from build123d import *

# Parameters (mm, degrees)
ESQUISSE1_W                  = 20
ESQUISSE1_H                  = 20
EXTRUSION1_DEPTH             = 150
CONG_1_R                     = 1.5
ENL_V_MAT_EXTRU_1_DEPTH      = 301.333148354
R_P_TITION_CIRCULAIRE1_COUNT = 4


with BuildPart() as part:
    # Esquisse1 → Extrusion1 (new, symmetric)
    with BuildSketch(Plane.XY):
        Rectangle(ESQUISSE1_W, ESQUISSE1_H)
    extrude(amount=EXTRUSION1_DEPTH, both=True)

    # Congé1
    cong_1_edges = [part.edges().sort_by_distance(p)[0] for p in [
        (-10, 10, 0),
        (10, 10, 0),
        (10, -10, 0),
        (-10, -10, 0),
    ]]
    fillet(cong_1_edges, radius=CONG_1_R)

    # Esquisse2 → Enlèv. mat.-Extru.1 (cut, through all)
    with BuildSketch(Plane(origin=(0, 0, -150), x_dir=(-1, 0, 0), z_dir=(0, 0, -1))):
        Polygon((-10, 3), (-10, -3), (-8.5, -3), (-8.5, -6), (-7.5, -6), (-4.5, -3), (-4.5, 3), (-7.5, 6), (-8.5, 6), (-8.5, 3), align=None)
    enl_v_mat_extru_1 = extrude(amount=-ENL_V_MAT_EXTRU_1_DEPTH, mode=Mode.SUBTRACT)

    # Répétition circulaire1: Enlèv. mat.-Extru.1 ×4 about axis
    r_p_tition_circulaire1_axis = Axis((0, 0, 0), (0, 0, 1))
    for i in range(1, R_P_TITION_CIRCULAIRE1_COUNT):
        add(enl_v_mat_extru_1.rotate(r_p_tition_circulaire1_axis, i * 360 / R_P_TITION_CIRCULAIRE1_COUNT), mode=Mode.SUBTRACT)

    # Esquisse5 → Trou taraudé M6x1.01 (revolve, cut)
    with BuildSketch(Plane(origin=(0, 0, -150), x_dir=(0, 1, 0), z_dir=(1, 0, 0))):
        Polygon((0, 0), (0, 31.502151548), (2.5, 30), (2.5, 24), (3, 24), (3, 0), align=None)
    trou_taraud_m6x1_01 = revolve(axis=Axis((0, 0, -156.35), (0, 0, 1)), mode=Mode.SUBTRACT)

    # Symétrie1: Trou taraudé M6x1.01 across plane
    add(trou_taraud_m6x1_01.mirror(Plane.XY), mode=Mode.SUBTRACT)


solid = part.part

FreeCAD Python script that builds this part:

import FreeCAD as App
import Part
import Sketcher
Q = App.Units.Quantity


def edges_at(feature, points):
    """Names of the edges that pass closest to the given points."""
    edges = feature.Shape.Edges
    near = lambda p: min(range(len(edges)), key=lambda i: edges[i].distToShape(Part.Vertex(*p))[0])
    return sorted({f"Edge{near(p) + 1}" for p in points})


def add_polygon(sketch, points):
    """Adds a closed chain of lines whose ends are joined by coincident constraints."""
    first, n = sketch.GeometryCount, len(points)
    for a, b in zip(points, points[1:] + points[:1]):
        sketch.addGeometry(Part.LineSegment(App.Vector(*a, 0), App.Vector(*b, 0)), False)
    for i in range(n):
        sketch.addConstraint(Sketcher.Constraint("Coincident", first + i, 2, first + (i + 1) % n, 1))

doc = App.newDocument("Part")
body = doc.addObject("PartDesign::Body", "Body")

# Sketch on XY plane
sketch1 = body.newObject("Sketcher::SketchObject", "Sketch")
sketch1.AttachmentSupport = (doc.getObject("XY_Plane"), [""])
sketch1.MapMode = "FlatFace"
add_polygon(sketch1, [(-10, 10), (-10, -10), (10, -10), (10, 10)])  # lines 0-3
sketch1.addConstraint([
    Sketcher.Constraint("Vertical", 0),
    Sketcher.Constraint("Horizontal", 1),
    Sketcher.Constraint("Vertical", 2),
    Sketcher.Constraint("Horizontal", 3),
    Sketcher.Constraint("Symmetric", 0, 2, 2, 2, -1, 1),
    Sketcher.Constraint("Equal", 3, 0),
    Sketcher.Constraint("DistanceX", 1, 1, 1, 2, 20.0),
])
pad1 = body.newObject("PartDesign::Pad", "Pad")
pad1.Profile = sketch1
pad1.Length = 300
pad1.Midplane = True
doc.recompute()

fillet = body.newObject("PartDesign::Fillet", "Fillet")
fillet.Base = (pad1, edges_at(pad1, [
    (-10, 10, 0),
    (10, 10, 0),
    (10, -10, 0),
    (-10, -10, 0),
]))
fillet.Radius = 1.5

# Sketch on XY plane
sketch2 = body.newObject("Sketcher::SketchObject", "Sketch001")
sketch2.AttachmentSupport = (doc.getObject("XY_Plane"), [""])
sketch2.MapMode = "FlatFace"
sketch2.AttachmentOffset = App.Placement(App.Vector(0, 0, -150), App.Rotation())
add_polygon(sketch2, [(10, 3), (10, -3), (8.5, -3), (8.5, -6), (7.5, -6), (4.5, -3), (4.5, 3), (7.5, 6), (8.5, 6), (8.5, 3)])  # lines 0-9
sketch2.addConstraint([
    Sketcher.Constraint("Vertical", 0),
    Sketcher.Constraint("Horizontal", 1),
    Sketcher.Constraint("Vertical", 2),
    Sketcher.Constraint("Horizontal", 3),
    Sketcher.Constraint("Vertical", 5),
    Sketcher.Constraint("Horizontal", 7),
    Sketcher.Constraint("Vertical", 8),
    Sketcher.Constraint("Horizontal", 9),
    Sketcher.Constraint("Symmetric", 3, 2, 6, 2, -1),
    Sketcher.Constraint("Symmetric", 1, 2, 8, 2, -1),
    Sketcher.Constraint("Perpendicular", 4, 6),
    Sketcher.Constraint("Horizontal", 1, 2, 4, 2),
    Sketcher.Constraint("Horizontal", 5, 2, 8, 2),
    Sketcher.Constraint("DistanceX", 3, 2, 3, 1, 1.0),
    Sketcher.Constraint("DistanceY", 0, 2, 0, 1, 6.0),
    Sketcher.Constraint("DistanceY", 2, 2, 2, 1, 3.0),
    Sketcher.Constraint("DistanceX", 1, 2, 1, 1, 1.5),
    Sketcher.Constraint("DistanceX", -1, 1, 0, 2, 10.0),
])
pocket1 = body.newObject("PartDesign::Pocket", "Pocket")
pocket1.Profile = sketch2
pocket1.Type = "ThroughAll"
pocket1.Reversed = True
doc.recompute()

polarpattern = body.newObject("PartDesign::PolarPattern", "PolarPattern")
polarpattern.Originals = [pocket1]
polarpattern.Axis = (doc.getObject("Z_Axis"), [""])
polarpattern.Angle = 360
polarpattern.Occurrences = 4
body.Tip = polarpattern

# Sketch on YZ plane
sketch3 = body.newObject("Sketcher::SketchObject", "Sketch002")
sketch3.AttachmentSupport = (doc.getObject("YZ_Plane"), [""])
sketch3.MapMode = "FlatFace"
add_polygon(sketch3, [(0, -118.5), (0, -150), (3, -150), (3, -126), (2.5, -126), (2.5, -120)])  # lines 0-5
sketch3.addConstraint([
    Sketcher.Constraint("Vertical", 0),
    Sketcher.Constraint("Horizontal", 1),
    Sketcher.Constraint("Vertical", 2),
    Sketcher.Constraint("Horizontal", 3),
    Sketcher.Constraint("Vertical", 4),
    Sketcher.Constraint("PointOnObject", 0, 2, -2),
    Sketcher.Constraint("DistanceX", 1, 1, 1, 2, 3.0),
    Sketcher.Constraint("DistanceY", 2, 1, 2, 2, 24.0),
    Sketcher.Constraint("DistanceY", 4, 1, 4, 2, 6.0),
    Sketcher.Constraint("Angle", 5, Q("149 deg")),
    Sketcher.Constraint("DistanceX", 3, 2, 3, 1, 0.5),
    Sketcher.Constraint("DistanceY", 0, 2, -1, 1, 150.0),
])
groove = body.newObject("PartDesign::Groove", "Groove")
groove.Profile = sketch3
groove.ReferenceAxis = (sketch3, ["V_Axis"])
groove.Angle = 360
doc.recompute()

mirrored = body.newObject("PartDesign::Mirrored", "Mirrored")
mirrored.Originals = [groove]
mirrored.MirrorPlane = (doc.getObject("XY_Plane"), [""])
body.Tip = mirrored

doc.recompute()
